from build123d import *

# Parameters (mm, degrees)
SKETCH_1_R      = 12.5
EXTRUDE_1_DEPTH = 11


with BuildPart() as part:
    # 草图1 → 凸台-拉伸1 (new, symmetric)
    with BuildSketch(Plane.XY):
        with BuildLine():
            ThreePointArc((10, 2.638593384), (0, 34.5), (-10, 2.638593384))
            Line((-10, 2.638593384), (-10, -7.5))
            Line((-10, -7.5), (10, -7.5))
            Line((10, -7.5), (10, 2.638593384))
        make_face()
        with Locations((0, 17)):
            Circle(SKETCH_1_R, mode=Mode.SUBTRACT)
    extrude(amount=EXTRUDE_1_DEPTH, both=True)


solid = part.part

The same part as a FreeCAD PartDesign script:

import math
import FreeCAD as App
import Part
import Sketcher

V = App.Vector
Q = App.Units.Quantity

doc = App.newDocument("Part")
body = doc.addObject("PartDesign::Body", "Body")

# Sketch on XY plane
sketch1 = doc.addObject("Sketcher::SketchObject", "Sketch")
body.addObject(sketch1)
sketch1.AttachmentSupport = (doc.XY_Plane, [""])
sketch1.MapMode = "FlatFace"
sketch1.addGeometry([
    Part.ArcOfCircle(Part.Circle(V(0, 17, 0), V(0, 0, 1), 18), math.radians(-55), math.radians(235)),  # 0
    Part.LineSegment(V(-10, 3, 0), V(-10, -8, 0)),  # 1
    Part.LineSegment(V(-10, -8, 0), V(10, -8, 0)),  # 2
    Part.LineSegment(V(10, -8, 0), V(10, 3, 0)),  # 3
    Part.Circle(V(0, 17, 0), V(0, 0, 1), 12),  # 4
], False)
sketch1.addConstraint([
    Sketcher.Constraint("Coincident", 0, 2, 1, 1),
    Sketcher.Constraint("Coincident", 1, 2, 2, 1),
    Sketcher.Constraint("Coincident", 2, 2, 3, 1),
    Sketcher.Constraint("Coincident", 3, 2, 0, 1),
    Sketcher.Constraint("Vertical", 1),
    Sketcher.Constraint("Horizontal", 2),
    Sketcher.Constraint("Vertical", 3),
    Sketcher.Constraint("Coincident", 4, 3, 0, 3),
    Sketcher.Constraint("Symmetric", 0, 2, 3, 2, -2),
    Sketcher.Constraint("Diameter", 4, Q("25 mm")),
    Sketcher.Constraint("Radius", 0, Q("17.5 mm")),
    Sketcher.Constraint("DistanceX", 2, 1, 2, 2, Q("20 mm")),
    Sketcher.Constraint("DistanceY", -1, 1, 0, 3, Q("17 mm")),
    Sketcher.Constraint("DistanceY", 1, 2, -1, 1, Q("7.5 mm")),
])
pad1 = doc.addObject("PartDesign::Pad", "Pad")
body.addObject(pad1)
pad1.Profile = sketch1
pad1.Length = 22
pad1.Midplane = True

doc.recompute()
